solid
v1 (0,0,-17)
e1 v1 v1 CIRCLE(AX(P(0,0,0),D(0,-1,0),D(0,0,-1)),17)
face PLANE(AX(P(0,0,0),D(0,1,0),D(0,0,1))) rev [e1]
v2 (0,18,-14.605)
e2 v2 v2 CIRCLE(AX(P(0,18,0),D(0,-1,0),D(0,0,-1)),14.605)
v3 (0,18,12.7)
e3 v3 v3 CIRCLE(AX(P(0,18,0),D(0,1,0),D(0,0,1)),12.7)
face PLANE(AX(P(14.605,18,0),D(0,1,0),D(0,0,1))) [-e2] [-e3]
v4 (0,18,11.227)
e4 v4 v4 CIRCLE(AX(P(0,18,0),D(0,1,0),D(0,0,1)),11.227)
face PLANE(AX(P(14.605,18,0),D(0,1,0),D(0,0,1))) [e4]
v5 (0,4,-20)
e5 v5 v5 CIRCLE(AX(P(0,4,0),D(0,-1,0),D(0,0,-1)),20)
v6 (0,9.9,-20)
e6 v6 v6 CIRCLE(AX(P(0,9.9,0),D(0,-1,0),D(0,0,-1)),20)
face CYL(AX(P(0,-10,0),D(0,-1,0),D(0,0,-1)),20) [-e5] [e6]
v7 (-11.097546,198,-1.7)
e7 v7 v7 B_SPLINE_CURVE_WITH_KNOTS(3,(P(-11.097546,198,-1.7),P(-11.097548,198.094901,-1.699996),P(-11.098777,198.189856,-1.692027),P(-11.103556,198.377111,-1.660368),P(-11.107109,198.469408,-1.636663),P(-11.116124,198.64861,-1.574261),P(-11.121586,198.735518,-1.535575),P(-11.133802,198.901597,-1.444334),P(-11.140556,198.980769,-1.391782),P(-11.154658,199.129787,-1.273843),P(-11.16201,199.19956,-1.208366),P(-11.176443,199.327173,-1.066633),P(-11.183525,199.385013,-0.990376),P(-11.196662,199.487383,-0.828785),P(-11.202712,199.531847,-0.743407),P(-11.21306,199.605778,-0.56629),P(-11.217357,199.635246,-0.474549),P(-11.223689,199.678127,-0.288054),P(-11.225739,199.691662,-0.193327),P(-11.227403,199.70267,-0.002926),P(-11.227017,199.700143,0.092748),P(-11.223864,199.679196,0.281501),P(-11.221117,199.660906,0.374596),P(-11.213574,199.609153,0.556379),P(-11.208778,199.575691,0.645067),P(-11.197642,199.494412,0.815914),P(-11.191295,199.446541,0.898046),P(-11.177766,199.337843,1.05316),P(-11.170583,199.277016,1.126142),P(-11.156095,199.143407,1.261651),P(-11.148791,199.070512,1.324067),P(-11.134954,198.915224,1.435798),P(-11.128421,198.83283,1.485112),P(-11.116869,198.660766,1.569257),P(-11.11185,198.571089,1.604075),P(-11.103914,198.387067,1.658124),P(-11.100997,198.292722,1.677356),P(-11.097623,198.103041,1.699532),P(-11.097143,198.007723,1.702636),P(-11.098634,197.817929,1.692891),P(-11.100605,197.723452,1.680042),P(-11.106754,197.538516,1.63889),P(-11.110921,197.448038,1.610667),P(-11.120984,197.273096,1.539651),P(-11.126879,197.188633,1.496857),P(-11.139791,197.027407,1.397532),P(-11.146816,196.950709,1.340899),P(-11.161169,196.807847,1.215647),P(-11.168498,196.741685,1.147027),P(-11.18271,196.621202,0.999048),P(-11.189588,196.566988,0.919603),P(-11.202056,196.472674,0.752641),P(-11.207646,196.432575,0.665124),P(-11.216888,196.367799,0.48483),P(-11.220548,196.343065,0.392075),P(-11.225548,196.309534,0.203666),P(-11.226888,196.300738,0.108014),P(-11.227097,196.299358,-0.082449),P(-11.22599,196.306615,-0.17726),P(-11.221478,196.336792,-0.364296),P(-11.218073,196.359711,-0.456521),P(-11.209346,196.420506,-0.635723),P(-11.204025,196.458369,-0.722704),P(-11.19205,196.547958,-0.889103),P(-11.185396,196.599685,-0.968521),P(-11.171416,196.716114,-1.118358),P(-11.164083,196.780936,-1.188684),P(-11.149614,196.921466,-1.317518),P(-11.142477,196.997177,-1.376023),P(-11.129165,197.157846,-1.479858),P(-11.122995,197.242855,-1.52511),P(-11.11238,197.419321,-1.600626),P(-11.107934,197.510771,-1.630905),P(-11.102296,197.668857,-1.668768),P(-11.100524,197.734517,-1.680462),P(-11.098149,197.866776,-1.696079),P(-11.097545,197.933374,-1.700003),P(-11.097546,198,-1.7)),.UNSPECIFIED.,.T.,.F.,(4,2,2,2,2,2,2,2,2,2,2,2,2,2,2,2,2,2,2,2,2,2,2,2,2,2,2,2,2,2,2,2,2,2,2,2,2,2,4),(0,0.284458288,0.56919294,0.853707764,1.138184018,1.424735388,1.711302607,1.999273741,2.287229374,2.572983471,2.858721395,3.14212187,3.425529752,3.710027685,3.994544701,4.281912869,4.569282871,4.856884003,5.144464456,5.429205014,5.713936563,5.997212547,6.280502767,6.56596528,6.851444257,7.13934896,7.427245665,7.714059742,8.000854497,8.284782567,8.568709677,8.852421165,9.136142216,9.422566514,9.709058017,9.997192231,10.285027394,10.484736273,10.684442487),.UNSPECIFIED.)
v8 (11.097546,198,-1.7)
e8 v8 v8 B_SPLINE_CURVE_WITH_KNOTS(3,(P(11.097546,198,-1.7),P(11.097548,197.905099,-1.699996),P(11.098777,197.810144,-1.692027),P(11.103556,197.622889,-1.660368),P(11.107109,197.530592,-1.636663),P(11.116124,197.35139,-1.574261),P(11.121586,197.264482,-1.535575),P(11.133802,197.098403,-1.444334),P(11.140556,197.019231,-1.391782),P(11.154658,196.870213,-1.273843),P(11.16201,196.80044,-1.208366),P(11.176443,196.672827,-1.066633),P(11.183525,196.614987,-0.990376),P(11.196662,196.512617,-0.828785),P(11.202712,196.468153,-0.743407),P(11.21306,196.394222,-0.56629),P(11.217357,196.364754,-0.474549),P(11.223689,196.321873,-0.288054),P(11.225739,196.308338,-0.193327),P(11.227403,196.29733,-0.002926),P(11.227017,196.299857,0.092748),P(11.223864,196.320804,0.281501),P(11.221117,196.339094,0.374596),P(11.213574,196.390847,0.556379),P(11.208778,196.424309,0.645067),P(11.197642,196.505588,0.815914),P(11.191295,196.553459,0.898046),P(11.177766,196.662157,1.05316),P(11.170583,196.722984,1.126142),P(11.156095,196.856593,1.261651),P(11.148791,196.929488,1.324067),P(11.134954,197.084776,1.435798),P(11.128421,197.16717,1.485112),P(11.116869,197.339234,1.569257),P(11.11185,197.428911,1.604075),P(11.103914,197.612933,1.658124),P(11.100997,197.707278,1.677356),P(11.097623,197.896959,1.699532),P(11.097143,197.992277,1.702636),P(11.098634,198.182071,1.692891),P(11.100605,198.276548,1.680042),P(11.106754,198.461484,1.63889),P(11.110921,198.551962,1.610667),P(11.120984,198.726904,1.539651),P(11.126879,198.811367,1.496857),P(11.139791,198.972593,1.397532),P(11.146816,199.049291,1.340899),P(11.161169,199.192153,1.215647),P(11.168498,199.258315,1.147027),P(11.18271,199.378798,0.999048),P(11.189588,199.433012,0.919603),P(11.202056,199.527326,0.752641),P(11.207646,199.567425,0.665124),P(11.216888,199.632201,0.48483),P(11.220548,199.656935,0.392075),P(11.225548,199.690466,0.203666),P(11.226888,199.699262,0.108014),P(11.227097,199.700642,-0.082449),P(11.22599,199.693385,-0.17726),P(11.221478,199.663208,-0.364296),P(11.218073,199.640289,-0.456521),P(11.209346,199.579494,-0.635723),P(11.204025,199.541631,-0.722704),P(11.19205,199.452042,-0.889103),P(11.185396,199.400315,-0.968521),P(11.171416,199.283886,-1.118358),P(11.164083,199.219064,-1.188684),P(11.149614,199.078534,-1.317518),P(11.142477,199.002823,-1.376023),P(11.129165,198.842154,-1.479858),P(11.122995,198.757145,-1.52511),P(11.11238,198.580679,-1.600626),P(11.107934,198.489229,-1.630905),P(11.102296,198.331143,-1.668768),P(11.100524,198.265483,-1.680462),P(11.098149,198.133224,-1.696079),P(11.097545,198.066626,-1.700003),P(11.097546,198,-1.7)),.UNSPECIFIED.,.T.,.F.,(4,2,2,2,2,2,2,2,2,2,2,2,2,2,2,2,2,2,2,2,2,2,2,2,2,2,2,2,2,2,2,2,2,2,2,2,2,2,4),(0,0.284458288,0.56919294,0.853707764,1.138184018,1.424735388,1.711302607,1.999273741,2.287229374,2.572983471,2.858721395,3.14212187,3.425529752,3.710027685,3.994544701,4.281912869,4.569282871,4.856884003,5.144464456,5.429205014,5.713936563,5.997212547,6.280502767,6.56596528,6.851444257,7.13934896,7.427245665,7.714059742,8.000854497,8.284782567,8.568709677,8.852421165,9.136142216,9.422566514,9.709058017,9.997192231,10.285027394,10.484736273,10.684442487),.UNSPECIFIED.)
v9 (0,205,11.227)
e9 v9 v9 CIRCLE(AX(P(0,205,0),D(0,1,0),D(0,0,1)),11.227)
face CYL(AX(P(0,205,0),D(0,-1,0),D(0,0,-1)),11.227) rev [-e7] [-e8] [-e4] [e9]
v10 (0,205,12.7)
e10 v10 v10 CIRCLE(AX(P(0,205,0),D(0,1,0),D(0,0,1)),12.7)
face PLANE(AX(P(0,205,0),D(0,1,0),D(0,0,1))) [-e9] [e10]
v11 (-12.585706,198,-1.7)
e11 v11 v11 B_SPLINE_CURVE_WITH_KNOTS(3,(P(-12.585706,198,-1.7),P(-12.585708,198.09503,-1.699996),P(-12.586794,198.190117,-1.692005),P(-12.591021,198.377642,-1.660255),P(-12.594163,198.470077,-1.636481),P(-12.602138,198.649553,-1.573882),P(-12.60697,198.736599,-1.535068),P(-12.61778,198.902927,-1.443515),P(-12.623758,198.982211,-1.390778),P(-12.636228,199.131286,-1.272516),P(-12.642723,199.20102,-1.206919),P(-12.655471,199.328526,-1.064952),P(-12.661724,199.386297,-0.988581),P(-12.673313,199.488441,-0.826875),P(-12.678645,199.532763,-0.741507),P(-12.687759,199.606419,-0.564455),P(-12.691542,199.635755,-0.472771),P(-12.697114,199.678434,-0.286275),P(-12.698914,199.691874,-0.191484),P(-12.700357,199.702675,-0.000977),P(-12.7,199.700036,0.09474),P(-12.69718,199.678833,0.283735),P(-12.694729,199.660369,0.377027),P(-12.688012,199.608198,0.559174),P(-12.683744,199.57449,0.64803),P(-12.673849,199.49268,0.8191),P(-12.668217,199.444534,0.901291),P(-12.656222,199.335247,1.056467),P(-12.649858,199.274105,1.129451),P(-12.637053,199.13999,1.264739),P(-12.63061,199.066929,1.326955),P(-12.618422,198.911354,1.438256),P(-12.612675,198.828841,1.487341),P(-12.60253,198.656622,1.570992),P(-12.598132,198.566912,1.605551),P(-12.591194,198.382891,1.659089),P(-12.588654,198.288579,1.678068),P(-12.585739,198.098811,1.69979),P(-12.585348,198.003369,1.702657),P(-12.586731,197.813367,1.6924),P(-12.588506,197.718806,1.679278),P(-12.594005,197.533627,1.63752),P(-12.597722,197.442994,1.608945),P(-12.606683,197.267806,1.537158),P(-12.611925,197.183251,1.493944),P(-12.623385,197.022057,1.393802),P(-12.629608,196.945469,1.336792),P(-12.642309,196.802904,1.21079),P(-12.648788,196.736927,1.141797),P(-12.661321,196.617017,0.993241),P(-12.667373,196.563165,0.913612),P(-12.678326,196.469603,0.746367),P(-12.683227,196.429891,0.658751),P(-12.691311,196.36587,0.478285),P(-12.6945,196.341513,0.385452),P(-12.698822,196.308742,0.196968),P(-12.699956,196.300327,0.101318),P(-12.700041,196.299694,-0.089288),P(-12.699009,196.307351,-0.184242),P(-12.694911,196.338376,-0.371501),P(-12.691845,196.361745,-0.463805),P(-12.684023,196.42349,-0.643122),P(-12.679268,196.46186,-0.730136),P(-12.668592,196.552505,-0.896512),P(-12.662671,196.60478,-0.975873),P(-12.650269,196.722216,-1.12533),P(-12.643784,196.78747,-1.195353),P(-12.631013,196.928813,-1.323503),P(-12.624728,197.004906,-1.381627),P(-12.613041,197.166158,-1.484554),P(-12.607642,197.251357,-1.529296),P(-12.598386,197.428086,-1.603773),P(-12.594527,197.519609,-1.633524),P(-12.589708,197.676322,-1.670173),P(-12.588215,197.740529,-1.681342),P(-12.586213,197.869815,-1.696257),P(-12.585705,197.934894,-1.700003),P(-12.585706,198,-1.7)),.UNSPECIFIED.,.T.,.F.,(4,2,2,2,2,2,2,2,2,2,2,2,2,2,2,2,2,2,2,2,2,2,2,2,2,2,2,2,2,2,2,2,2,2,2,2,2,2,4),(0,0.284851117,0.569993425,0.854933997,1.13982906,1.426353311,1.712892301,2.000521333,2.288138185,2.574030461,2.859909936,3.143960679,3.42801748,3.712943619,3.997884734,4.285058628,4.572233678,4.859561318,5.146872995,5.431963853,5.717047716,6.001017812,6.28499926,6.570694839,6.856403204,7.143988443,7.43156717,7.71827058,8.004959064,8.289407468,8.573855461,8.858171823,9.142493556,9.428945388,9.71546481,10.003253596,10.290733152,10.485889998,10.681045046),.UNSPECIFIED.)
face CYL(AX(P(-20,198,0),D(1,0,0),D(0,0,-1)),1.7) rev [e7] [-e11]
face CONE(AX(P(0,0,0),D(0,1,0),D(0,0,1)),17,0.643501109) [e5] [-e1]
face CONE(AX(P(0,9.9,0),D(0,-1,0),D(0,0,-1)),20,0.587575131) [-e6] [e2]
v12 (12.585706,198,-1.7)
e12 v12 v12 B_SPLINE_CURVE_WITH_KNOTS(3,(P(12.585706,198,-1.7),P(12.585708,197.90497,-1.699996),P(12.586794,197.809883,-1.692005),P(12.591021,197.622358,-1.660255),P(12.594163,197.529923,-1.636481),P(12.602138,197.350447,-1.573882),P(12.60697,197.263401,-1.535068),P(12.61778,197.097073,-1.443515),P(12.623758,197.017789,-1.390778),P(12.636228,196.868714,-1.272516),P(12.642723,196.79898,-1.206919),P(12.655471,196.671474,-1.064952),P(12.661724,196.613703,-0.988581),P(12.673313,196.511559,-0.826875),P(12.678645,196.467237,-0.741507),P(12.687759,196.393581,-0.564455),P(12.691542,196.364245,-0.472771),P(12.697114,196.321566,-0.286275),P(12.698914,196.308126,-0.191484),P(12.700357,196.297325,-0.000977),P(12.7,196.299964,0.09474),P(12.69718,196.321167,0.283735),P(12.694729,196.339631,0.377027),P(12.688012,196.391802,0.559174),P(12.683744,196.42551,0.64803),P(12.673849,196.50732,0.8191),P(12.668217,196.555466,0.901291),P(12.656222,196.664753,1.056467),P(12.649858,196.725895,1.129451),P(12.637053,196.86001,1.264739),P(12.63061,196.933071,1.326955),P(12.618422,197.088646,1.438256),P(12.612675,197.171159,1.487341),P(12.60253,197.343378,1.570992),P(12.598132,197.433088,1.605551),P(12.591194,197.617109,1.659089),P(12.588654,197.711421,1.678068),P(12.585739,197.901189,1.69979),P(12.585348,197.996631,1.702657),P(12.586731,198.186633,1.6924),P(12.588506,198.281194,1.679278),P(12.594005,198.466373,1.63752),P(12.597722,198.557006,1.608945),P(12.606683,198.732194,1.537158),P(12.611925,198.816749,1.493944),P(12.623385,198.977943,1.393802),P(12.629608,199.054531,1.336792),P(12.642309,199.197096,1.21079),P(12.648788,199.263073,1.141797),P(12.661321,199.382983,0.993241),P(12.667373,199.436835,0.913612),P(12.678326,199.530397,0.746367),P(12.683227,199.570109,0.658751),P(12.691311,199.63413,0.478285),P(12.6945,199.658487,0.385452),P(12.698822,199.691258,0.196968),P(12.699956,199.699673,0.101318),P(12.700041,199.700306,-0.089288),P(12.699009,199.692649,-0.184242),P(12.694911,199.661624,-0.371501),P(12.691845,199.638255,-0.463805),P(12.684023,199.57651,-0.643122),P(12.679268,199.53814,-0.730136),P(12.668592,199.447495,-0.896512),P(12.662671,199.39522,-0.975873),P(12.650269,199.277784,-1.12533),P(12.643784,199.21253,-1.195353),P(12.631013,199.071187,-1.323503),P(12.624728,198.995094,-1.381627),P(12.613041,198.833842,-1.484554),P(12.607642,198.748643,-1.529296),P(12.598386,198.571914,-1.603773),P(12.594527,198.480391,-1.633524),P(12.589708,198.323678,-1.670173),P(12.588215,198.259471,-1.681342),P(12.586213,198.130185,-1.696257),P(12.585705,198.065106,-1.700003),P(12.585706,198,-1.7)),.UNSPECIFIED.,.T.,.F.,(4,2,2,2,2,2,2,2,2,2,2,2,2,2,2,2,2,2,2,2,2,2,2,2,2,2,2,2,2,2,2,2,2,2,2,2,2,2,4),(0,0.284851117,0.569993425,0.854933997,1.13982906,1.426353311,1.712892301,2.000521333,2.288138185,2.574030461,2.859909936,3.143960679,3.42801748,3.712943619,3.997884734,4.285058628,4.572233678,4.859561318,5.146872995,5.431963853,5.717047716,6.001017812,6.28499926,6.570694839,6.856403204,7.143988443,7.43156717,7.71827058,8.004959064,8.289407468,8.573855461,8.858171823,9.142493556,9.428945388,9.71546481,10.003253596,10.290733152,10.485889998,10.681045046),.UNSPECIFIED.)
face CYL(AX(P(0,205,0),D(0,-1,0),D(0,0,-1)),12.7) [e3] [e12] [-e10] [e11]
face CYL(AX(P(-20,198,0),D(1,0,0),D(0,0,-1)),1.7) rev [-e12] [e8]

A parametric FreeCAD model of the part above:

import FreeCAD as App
import Part
import Sketcher

V = App.Vector


def add_polygon(sketch, points):
    """Adds a closed chain of lines whose ends are joined by coincident constraints."""
    first, n = sketch.GeometryCount, len(points)
    for a, b in zip(points, points[1:] + points[:1]):
        sketch.addGeometry(Part.LineSegment(App.Vector(*a, 0), App.Vector(*b, 0)), False)
    for i in range(n):
        sketch.addConstraint(Sketcher.Constraint("Coincident", first + i, 2, first + (i + 1) % n, 1))

doc = App.newDocument("Part")
params = doc.addObject("Spreadsheet::Sheet", "Params")
for row, (alias, value) in enumerate([
    ("sketch1_diameter", "25.4 mm"),
    ("pad1_length", "205 mm"),
    ("sketch2_width", "17 mm"),
    ("sketch2_height", "18 mm"),
    ("sketch2_length", "5 mm"),
    ("sketch2_height2", "5.9 mm"),
    ("revolution_angle", "360 deg"),
    ("sketch3_diameter", "3.4 mm"),
], start=1):
    params.set(f"A{row}", alias)
    params.set(f"B{row}", "=" + value)
    params.setAlias(f"B{row}", alias)

body = doc.addObject("PartDesign::Body", "Body")

# Sketch on XZ plane
sketch1 = body.newObject("Sketcher::SketchObject", "Sketch")
sketch1.AttachmentSupport = (doc.getObject("XZ_Plane"), [""])
sketch1.MapMode = "FlatFace"
sketch1.addGeometry([
    Part.Circle(V(0, 0, 0), V(0, 0, 1), 13),
    Part.Circle(V(0, 0, 0), V(0, 0, 1), 11),
], False)
sketch1.addConstraint([
    Sketcher.Constraint("Coincident", 0, 3, -1, 1),
    Sketcher.Constraint("Coincident", 1, 3, -1, 1),
    Sketcher.Constraint("Diameter", 0, 25.4),
    Sketcher.Constraint("Diameter", 1, 22.454),
])
sketch1.setExpression("Constraints[2]", "Params.sketch1_diameter")
pad1 = body.newObject("PartDesign::Pad", "Pad")
pad1.Profile = sketch1
pad1.setExpression("Length", "Params.pad1_length")
pad1.Reversed = True

# Sketch on XY plane
sketch2 = body.newObject("Sketcher::SketchObject", "Sketch001")
sketch2.AttachmentSupport = (doc.getObject("XY_Plane"), [""])
sketch2.MapMode = "FlatFace"
add_polygon(sketch2, [(0, 0), (17, 0), (20, 4), (20, 10), (15, 18), (0, 18)])  # lines 0-5
sketch2.addConstraint([
    Sketcher.Constraint("Horizontal", 0),
    Sketcher.Constraint("Vertical", 2),
    Sketcher.Constraint("Horizontal", 4),
    Sketcher.Constraint("Vertical", 5),
    Sketcher.Constraint("Coincident", 5, 2, -1, 1),
    Sketcher.Constraint("DistanceX", 0, 1, 0, 2, 17.0),
    Sketcher.Constraint("DistanceY", 5, 2, 5, 1, 18.0),
    Sketcher.Constraint("Distance", 1, 5.0),
    Sketcher.Constraint("DistanceY", 2, 1, 2, 2, 5.9),
    Sketcher.Constraint("DistanceX", -1, 1, 1, 2, 20.0),
    Sketcher.Constraint("DistanceX", 4, 2, 4, 1, 14.605),
])
sketch2.setExpression("Constraints[11]", "Params.sketch2_width")
sketch2.setExpression("Constraints[12]", "Params.sketch2_height")
sketch2.setExpression("Constraints[13]", "Params.sketch2_length")
sketch2.setExpression("Constraints[14]", "Params.sketch2_height2")
revolution = body.newObject("PartDesign::Revolution", "Revolution")
revolution.Profile = sketch2
revolution.ReferenceAxis = (sketch2, ["V_Axis"])
revolution.setExpression("Angle", "Params.revolution_angle")

# Sketch on YZ plane
sketch3 = body.newObject("Sketcher::SketchObject", "Sketch002")
sketch3.AttachmentSupport = (doc.getObject("YZ_Plane"), [""])
sketch3.MapMode = "FlatFace"
sketch3.addGeometry(Part.Circle(V(198, 0, 0), V(0, 0, 1), 1.7), False)
sketch3.addConstraint([
    Sketcher.Constraint("PointOnObject", 0, 3, -1),
    Sketcher.Constraint("Diameter", 0, 3.4),
    Sketcher.Constraint("DistanceX", -1, 1, 0, 3, 198.0),
])
sketch3.setExpression("Constraints[1]", "Params.sketch3_diameter")
pocket1 = body.newObject("PartDesign::Pocket", "Pocket")
pocket1.Profile = sketch3
pocket1.Type = "ThroughAll"
pocket1.Midplane = True

doc.recompute()
